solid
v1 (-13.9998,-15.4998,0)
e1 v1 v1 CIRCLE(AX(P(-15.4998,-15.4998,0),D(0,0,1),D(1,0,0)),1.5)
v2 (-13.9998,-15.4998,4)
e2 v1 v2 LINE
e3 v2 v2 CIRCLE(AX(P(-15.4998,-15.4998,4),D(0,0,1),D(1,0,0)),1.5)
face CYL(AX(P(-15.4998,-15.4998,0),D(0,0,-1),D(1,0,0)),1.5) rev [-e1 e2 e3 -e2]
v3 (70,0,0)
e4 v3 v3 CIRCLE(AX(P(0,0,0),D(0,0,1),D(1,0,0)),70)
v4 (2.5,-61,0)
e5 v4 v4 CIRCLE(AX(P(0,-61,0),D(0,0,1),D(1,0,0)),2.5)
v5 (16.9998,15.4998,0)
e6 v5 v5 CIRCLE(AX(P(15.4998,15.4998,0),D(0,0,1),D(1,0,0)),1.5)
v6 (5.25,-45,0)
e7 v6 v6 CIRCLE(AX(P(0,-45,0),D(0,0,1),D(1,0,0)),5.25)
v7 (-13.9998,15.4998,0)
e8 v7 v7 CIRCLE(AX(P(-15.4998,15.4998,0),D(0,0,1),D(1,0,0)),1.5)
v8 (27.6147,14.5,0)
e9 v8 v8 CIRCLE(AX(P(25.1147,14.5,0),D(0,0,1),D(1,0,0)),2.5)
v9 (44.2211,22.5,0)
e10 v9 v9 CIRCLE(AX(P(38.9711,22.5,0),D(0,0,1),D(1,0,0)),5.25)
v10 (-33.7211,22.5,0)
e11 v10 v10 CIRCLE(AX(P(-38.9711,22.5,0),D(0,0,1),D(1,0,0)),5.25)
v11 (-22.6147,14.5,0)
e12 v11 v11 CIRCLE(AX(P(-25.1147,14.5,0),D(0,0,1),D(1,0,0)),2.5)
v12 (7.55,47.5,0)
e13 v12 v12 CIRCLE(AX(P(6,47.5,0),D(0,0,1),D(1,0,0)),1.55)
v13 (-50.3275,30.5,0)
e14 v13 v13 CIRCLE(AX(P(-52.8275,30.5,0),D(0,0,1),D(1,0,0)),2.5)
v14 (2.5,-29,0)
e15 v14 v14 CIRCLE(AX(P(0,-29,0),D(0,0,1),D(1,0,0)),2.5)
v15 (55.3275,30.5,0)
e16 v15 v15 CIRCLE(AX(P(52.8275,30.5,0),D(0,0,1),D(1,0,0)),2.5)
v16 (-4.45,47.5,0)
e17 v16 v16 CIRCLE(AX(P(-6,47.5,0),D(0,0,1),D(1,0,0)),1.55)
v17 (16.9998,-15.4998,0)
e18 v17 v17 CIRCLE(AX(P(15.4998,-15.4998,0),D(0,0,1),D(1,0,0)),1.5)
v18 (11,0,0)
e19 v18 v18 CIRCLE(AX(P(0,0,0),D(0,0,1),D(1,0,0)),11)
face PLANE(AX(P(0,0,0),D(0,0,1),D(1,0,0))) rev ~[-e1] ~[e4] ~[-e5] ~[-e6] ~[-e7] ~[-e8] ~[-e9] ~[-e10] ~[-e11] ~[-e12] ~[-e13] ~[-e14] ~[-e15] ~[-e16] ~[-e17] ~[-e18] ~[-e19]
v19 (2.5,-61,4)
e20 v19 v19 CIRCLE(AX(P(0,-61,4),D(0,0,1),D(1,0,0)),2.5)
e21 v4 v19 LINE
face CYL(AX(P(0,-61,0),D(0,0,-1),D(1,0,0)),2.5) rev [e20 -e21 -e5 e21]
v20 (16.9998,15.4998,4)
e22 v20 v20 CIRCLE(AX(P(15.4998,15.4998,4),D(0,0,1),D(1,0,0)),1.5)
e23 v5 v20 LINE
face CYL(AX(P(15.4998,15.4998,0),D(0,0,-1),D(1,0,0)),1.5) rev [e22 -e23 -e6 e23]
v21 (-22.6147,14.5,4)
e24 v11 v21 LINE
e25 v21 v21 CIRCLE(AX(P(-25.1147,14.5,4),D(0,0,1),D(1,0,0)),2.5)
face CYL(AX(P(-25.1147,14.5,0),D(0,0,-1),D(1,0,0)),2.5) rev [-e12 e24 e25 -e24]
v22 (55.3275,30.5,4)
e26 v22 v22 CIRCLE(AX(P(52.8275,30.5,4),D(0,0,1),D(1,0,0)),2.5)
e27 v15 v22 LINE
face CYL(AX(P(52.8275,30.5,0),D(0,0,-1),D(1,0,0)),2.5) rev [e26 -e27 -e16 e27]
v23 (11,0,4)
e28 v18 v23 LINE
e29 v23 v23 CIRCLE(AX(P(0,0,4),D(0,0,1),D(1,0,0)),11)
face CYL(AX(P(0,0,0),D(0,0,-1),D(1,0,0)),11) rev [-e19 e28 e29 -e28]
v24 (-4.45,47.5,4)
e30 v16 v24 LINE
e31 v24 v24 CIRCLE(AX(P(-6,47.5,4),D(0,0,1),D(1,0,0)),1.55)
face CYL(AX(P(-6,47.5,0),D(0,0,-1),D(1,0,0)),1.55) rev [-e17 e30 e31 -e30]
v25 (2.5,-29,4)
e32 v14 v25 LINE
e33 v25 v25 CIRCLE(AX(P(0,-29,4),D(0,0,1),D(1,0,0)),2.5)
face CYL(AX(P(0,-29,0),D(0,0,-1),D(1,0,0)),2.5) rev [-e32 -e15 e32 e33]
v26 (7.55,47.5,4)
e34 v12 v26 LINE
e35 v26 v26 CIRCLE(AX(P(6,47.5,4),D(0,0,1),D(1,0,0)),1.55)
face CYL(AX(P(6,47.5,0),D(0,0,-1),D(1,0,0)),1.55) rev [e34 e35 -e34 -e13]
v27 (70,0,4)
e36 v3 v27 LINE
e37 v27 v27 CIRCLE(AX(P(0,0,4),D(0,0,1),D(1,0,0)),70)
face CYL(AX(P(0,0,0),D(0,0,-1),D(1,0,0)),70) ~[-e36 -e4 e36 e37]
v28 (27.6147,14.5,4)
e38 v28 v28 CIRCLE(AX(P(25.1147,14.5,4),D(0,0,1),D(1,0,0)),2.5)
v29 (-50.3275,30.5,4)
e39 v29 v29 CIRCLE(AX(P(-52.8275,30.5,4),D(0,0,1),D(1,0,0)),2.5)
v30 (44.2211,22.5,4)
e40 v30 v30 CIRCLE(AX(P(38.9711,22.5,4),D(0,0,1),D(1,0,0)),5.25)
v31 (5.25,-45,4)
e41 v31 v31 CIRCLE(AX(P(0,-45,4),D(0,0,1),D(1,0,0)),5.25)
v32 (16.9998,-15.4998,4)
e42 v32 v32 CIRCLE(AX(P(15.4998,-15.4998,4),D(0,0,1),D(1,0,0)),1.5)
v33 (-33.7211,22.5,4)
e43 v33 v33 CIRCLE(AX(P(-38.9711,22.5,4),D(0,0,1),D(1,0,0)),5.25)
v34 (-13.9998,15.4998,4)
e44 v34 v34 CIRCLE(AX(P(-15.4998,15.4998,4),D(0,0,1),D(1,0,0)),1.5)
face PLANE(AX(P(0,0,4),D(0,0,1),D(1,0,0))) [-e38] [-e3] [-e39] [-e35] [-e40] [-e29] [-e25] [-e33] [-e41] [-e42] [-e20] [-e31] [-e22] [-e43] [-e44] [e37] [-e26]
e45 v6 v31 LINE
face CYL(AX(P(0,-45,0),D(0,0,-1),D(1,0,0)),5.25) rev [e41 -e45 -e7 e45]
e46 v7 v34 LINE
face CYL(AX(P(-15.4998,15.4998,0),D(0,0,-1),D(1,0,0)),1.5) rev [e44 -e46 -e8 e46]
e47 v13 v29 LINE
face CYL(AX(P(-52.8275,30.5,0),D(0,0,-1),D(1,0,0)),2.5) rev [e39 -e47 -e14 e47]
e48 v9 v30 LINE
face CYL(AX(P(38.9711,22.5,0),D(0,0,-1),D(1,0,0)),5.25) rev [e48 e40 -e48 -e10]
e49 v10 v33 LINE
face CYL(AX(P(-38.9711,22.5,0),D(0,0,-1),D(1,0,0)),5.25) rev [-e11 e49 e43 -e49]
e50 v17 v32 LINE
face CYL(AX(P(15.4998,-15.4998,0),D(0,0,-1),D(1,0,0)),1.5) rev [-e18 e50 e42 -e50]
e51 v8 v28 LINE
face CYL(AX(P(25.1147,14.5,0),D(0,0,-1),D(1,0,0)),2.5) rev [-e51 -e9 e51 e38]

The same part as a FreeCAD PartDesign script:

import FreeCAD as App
import Part
import Sketcher
from FreeCAD import Vector

doc = App.newDocument("Part")
params = doc.addObject("Spreadsheet::Sheet", "Params")
for row, (alias, value) in enumerate([
    ("sketch1_diameter", "140 mm"),
    ("sketch1_diameter2", "3 mm"),
    ("sketch1_diameter3", "5 mm"),
    ("sketch1_diameter4", "22 mm"),
    ("sketch1_diameter5", "10.5 mm"),
    ("pad1_length", "4 mm"),
], start=1):
    params.set(f"A{row}", alias)
    params.set(f"B{row}", "=" + value)
    params.setAlias(f"B{row}", alias)

body = doc.addObject("PartDesign::Body", "Body")

# Sketch on XY plane
sketch1 = body.newObject("Sketcher::SketchObject", "Sketch")
sketch1.AttachmentSupport = (doc.getObject("XY_Plane"), [""])
sketch1.MapMode = "FlatFace"
sketch1.addGeometry(Part.Circle(Vector(0, 0, 0), Vector(0, 0, 1), 70), False)
sketch1.addGeometry(Part.Circle(Vector(-15.4998, -15.4998, 0), Vector(0, 0, 1), 1.5), False)
sketch1.addGeometry(Part.Circle(Vector(0, -61, 0), Vector(0, 0, 1), 2.5), False)
sketch1.addGeometry(Part.Circle(Vector(0, -45, 0), Vector(0, 0, 1), 5.25), False)
sketch1.addGeometry(Part.Circle(Vector(0, -29, 0), Vector(0, 0, 1), 2.5), False)
sketch1.addGeometry(Part.Circle(Vector(15.4998, -15.4998, 0), Vector(0, 0, 1), 1.5), False)
sketch1.addGeometry(Part.Circle(Vector(-52.8275, 30.5, 0), Vector(0, 0, 1), 2.5), False)
sketch1.addGeometry(Part.Circle(Vector(-38.9711, 22.5, 0), Vector(0, 0, 1), 5.25), False)
sketch1.addGeometry(Part.Circle(Vector(-25.1147, 14.5, 0), Vector(0, 0, 1), 2.5), False)
sketch1.addGeometry(Part.Circle(Vector(-15.4998, 15.4998, 0), Vector(0, 0, 1), 1.5), False)
sketch1.addGeometry(Part.Circle(Vector(-6, 47.5, 0), Vector(0, 0, 1), 1.55), False)
sketch1.addGeometry(Part.Circle(Vector(0, 0, 0), Vector(0, 0, 1), 11), False)
sketch1.addGeometry(Part.Circle(Vector(15.4998, 15.4998, 0), Vector(0, 0, 1), 1.5), False)
sketch1.addGeometry(Part.Circle(Vector(25.1147, 14.5, 0), Vector(0, 0, 1), 2.5), False)
sketch1.addGeometry(Part.Circle(Vector(38.9711, 22.5, 0), Vector(0, 0, 1), 5.25), False)
sketch1.addGeometry(Part.Circle(Vector(52.8275, 30.5, 0), Vector(0, 0, 1), 2.5), False)
sketch1.addGeometry(Part.Circle(Vector(6, 47.5, 0), Vector(0, 0, 1), 1.55), False)
sketch1.addConstraint(Sketcher.Constraint("Coincident", 0, 3, -1, 1))
sketch1.addConstraint(Sketcher.Constraint("Coincident", 11, 3, -1, 1))
sketch1.addConstraint(Sketcher.Constraint("Equal", 2, 4))
sketch1.addConstraint(Sketcher.Constraint("Equal", 1, 5))
sketch1.addConstraint(Sketcher.Constraint("Equal", 4, 6))
sketch1.addConstraint(Sketcher.Constraint("Equal", 3, 7))
sketch1.addConstraint(Sketcher.Constraint("Equal", 6, 8))
sketch1.addConstraint(Sketcher.Constraint("Equal", 5, 9))
sketch1.addConstraint(Sketcher.Constraint("Equal", 9, 12))
sketch1.addConstraint(Sketcher.Constraint("Equal", 8, 13))
sketch1.addConstraint(Sketcher.Constraint("Equal", 7, 14))
sketch1.addConstraint(Sketcher.Constraint("Equal", 13, 15))
sketch1.addConstraint(Sketcher.Constraint("Equal", 10, 16))
sketch1.addConstraint(Sketcher.Constraint("Symmetric", 5, 3, 9, 3, -1, 1))
sketch1.addConstraint(Sketcher.Constraint("Symmetric", 1, 3, 12, 3, -1, 1))
sketch1.addConstraint(Sketcher.Constraint("Symmetric", 1, 3, 5, 3, -2))
sketch1.addConstraint(Sketcher.Constraint("Symmetric", 8, 3, 13, 3, -2))
sketch1.addConstraint(Sketcher.Constraint("Symmetric", 7, 3, 14, 3, -2))
sketch1.addConstraint(Sketcher.Constraint("Symmetric", 6, 3, 15, 3, -2))
sketch1.addConstraint(Sketcher.Constraint("Symmetric", 10, 3, 16, 3, -2))
sketch1.addConstraint(Sketcher.Constraint("PointOnObject", 2, 3, -2))
sketch1.addConstraint(Sketcher.Constraint("PointOnObject", 3, 3, -2))
sketch1.addConstraint(Sketcher.Constraint("PointOnObject", 4, 3, -2))
sketch1.addConstraint(Sketcher.Constraint("Diameter", 0, 140.0))
sketch1.addConstraint(Sketcher.Constraint("Diameter", 1, 3.0))
sketch1.addConstraint(Sketcher.Constraint("Diameter", 2, 5.0))
sketch1.addConstraint(Sketcher.Constraint("Diameter", 11, 22.0))
sketch1.addConstraint(Sketcher.Constraint("Diameter", 3, 10.5))
sketch1.addConstraint(Sketcher.Constraint("Diameter", 10, 3.1))
sketch1.addConstraint(Sketcher.Constraint("DistanceY", 3, 3, -1, 1, 45.0))
sketch1.addConstraint(Sketcher.Constraint("DistanceX", 10, 3, -1, 1, 6.0))
sketch1.addConstraint(Sketcher.Constraint("DistanceY", 2, 3, 3, 3, 16.0))
sketch1.addConstraint(Sketcher.Constraint("DistanceY", 3, 3, 4, 3, 16.0))
sketch1.addConstraint(Sketcher.Constraint("DistanceY", 8, 3, 6, 3, 16.0))
sketch1.addConstraint(Sketcher.Constraint("DistanceY", -1, 1, 10, 3, 47.5))
sketch1.addConstraint(Sketcher.Constraint("DistanceY", 7, 3, 6, 3, 8.0))
sketch1.addConstraint(Sketcher.Constraint("DistanceY", 8, 3, 10, 3, 33.0))
sketch1.addConstraint(Sketcher.Constraint("DistanceX", 1, 3, -1, 1, 15.4998))
sketch1.addConstraint(Sketcher.Constraint("DistanceY", 1, 3, -1, 1, 15.4998))
sketch1.addConstraint(Sketcher.Constraint("DistanceX", 7, 3, -1, 1, 38.971))
sketch1.addConstraint(Sketcher.Constraint("DistanceX", 8, 3, 1, 3, 9.615))
sketch1.addConstraint(Sketcher.Constraint("DistanceX", 6, 3, -1, 1, 52.8275))
sketch1.setExpression("Constraints[23]", "Params.sketch1_diameter")
sketch1.setExpression("Constraints[24]", "Params.sketch1_diameter2")
sketch1.setExpression("Constraints[25]", "Params.sketch1_diameter3")
sketch1.setExpression("Constraints[26]", "Params.sketch1_diameter4")
sketch1.setExpression("Constraints[27]", "Params.sketch1_diameter5")
pad1 = body.newObject("PartDesign::Pad", "Pad")
pad1.Profile = sketch1
pad1.setExpression("Length", "Params.pad1_length")

doc.recompute()
